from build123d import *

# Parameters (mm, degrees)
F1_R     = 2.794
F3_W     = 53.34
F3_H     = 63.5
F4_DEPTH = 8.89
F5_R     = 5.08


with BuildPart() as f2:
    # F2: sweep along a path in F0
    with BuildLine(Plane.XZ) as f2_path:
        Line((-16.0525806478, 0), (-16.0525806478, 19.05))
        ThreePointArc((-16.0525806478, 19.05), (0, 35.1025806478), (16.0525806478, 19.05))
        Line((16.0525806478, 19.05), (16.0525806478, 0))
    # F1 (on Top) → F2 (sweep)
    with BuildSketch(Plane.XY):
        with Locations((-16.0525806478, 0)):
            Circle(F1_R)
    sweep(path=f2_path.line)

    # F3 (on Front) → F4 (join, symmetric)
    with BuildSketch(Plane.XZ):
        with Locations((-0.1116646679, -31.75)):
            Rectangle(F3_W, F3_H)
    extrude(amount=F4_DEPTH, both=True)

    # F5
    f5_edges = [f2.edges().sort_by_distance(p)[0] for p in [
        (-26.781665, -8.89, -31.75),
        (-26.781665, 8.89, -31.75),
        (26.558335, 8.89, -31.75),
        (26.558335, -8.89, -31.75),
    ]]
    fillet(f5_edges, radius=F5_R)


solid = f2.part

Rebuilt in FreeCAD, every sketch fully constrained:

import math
import FreeCAD as App
import Part
import Sketcher

V = App.Vector
Q = App.Units.Quantity


def edges_at(feature, points):
    """Names of the edges that pass closest to the given points."""
    edges = feature.Shape.Edges
    near = lambda p: min(range(len(edges)), key=lambda i: edges[i].distToShape(Part.Vertex(*p))[0])
    return sorted({f"Edge{near(p) + 1}" for p in points})


def add_polygon(sketch, points):
    """Adds a closed chain of lines whose ends are joined by coincident constraints."""
    first, n = sketch.GeometryCount, len(points)
    for a, b in zip(points, points[1:] + points[:1]):
        sketch.addGeometry(Part.LineSegment(App.Vector(*a, 0), App.Vector(*b, 0)), False)
    for i in range(n):
        sketch.addConstraint(Sketcher.Constraint("Coincident", first + i, 2, first + (i + 1) % n, 1))

doc = App.newDocument("Part")
body = doc.addObject("PartDesign::Body", "Body")

sketch1 = body.newObject("Sketcher::SketchObject", "Sketch")
sketch1.AttachmentSupport = (doc.getObject("XY_Plane"), [""])
sketch1.MapMode = "FlatFace"
sketch1.addGeometry(Part.Circle(V(-16.052581, 0, 0), V(0, 0, 1), 2.794), False)
sketch1.addConstraint(Sketcher.Constraint("PointOnObject", 0, 3, -1))
sketch1.addConstraint(Sketcher.Constraint("Diameter", 0, Q("0.22 in")))
sketch1.addConstraint(Sketcher.Constraint("DistanceX", 0, 3, -1, 1, 16.052581))

sketch2 = body.newObject("Sketcher::SketchObject", "Sketch001")
sketch2.AttachmentSupport = (doc.getObject("XZ_Plane"), [""])
sketch2.MapMode = "FlatFace"
sketch2.addGeometry(Part.LineSegment(V(-16.052581, 0, 0), V(-16.052581, 19.05, 0)), False)
sketch2.addGeometry(Part.ArcOfCircle(Part.Circle(V(0, 19.05, 0), V(0, 0, 1), 16.052581), math.radians(0), math.radians(180)), False)
sketch2.addGeometry(Part.LineSegment(V(16.052581, 19.05, 0), V(16.052581, 0, 0)), False)
sketch2.addConstraint(Sketcher.Constraint("Tangent", 0, 2, 1, 2))
sketch2.addConstraint(Sketcher.Constraint("Tangent", 1, 1, 2, 1))
sketch2.addConstraint(Sketcher.Constraint("Vertical", 0))
sketch2.addConstraint(Sketcher.Constraint("Vertical", 2))
sketch2.addConstraint(Sketcher.Constraint("Symmetric", 0, 1, 2, 2, -1, 1))
sketch2.addConstraint(Sketcher.Constraint("PointOnObject", 0, 1, -1))
sketch2.addConstraint(Sketcher.Constraint("DistanceY", 0, 1, 0, 2, Q("0.75 in")))
sketch2.addConstraint(Sketcher.Constraint("Radius", 1, 16.052581))
doc.recompute()

additivepipe = body.newObject("PartDesign::AdditivePipe", "AdditivePipe")
additivepipe.Profile = sketch1
additivepipe.Spine = (sketch2, ["Edge1", "Edge2", "Edge3"])

sketch3 = body.newObject("Sketcher::SketchObject", "Sketch002")
sketch3.AttachmentSupport = (doc.getObject("XZ_Plane"), [""])
sketch3.MapMode = "FlatFace"
add_polygon(sketch3, [(-26.781665, 0), (-26.781665, -63.5), (26.558335, -63.5), (26.558335, 0)])
sketch3.addConstraint(Sketcher.Constraint("Vertical", 0))
sketch3.addConstraint(Sketcher.Constraint("Horizontal", 1))
sketch3.addConstraint(Sketcher.Constraint("Vertical", 2))
sketch3.addConstraint(Sketcher.Constraint("Horizontal", 3))
sketch3.addConstraint(Sketcher.Constraint("PointOnObject", 2, 2, -1))
sketch3.addConstraint(Sketcher.Constraint("DistanceX", 1, 1, 1, 2, Q("2.1 in")))
sketch3.addConstraint(Sketcher.Constraint("DistanceY", 0, 2, 0, 1, Q("2.5 in")))
sketch3.addConstraint(Sketcher.Constraint("DistanceX", 0, 2, -1, 1, 26.781665))
pad1 = body.newObject("PartDesign::Pad", "Pad")
pad1.Profile = sketch3
pad1.Length = Q("0.7 in")
pad1.Midplane = True
doc.recompute()

fillet = body.newObject("PartDesign::Fillet", "Fillet")
fillet.Base = (pad1, edges_at(pad1, [
    (-26.782, -8.89, -31.75),
    (-26.782, 8.89, -31.75),
    (26.558, 8.89, -31.75),
    (26.558, -8.89, -31.75),
]))
fillet.Radius = Q("0.2 in")

doc.recompute()
